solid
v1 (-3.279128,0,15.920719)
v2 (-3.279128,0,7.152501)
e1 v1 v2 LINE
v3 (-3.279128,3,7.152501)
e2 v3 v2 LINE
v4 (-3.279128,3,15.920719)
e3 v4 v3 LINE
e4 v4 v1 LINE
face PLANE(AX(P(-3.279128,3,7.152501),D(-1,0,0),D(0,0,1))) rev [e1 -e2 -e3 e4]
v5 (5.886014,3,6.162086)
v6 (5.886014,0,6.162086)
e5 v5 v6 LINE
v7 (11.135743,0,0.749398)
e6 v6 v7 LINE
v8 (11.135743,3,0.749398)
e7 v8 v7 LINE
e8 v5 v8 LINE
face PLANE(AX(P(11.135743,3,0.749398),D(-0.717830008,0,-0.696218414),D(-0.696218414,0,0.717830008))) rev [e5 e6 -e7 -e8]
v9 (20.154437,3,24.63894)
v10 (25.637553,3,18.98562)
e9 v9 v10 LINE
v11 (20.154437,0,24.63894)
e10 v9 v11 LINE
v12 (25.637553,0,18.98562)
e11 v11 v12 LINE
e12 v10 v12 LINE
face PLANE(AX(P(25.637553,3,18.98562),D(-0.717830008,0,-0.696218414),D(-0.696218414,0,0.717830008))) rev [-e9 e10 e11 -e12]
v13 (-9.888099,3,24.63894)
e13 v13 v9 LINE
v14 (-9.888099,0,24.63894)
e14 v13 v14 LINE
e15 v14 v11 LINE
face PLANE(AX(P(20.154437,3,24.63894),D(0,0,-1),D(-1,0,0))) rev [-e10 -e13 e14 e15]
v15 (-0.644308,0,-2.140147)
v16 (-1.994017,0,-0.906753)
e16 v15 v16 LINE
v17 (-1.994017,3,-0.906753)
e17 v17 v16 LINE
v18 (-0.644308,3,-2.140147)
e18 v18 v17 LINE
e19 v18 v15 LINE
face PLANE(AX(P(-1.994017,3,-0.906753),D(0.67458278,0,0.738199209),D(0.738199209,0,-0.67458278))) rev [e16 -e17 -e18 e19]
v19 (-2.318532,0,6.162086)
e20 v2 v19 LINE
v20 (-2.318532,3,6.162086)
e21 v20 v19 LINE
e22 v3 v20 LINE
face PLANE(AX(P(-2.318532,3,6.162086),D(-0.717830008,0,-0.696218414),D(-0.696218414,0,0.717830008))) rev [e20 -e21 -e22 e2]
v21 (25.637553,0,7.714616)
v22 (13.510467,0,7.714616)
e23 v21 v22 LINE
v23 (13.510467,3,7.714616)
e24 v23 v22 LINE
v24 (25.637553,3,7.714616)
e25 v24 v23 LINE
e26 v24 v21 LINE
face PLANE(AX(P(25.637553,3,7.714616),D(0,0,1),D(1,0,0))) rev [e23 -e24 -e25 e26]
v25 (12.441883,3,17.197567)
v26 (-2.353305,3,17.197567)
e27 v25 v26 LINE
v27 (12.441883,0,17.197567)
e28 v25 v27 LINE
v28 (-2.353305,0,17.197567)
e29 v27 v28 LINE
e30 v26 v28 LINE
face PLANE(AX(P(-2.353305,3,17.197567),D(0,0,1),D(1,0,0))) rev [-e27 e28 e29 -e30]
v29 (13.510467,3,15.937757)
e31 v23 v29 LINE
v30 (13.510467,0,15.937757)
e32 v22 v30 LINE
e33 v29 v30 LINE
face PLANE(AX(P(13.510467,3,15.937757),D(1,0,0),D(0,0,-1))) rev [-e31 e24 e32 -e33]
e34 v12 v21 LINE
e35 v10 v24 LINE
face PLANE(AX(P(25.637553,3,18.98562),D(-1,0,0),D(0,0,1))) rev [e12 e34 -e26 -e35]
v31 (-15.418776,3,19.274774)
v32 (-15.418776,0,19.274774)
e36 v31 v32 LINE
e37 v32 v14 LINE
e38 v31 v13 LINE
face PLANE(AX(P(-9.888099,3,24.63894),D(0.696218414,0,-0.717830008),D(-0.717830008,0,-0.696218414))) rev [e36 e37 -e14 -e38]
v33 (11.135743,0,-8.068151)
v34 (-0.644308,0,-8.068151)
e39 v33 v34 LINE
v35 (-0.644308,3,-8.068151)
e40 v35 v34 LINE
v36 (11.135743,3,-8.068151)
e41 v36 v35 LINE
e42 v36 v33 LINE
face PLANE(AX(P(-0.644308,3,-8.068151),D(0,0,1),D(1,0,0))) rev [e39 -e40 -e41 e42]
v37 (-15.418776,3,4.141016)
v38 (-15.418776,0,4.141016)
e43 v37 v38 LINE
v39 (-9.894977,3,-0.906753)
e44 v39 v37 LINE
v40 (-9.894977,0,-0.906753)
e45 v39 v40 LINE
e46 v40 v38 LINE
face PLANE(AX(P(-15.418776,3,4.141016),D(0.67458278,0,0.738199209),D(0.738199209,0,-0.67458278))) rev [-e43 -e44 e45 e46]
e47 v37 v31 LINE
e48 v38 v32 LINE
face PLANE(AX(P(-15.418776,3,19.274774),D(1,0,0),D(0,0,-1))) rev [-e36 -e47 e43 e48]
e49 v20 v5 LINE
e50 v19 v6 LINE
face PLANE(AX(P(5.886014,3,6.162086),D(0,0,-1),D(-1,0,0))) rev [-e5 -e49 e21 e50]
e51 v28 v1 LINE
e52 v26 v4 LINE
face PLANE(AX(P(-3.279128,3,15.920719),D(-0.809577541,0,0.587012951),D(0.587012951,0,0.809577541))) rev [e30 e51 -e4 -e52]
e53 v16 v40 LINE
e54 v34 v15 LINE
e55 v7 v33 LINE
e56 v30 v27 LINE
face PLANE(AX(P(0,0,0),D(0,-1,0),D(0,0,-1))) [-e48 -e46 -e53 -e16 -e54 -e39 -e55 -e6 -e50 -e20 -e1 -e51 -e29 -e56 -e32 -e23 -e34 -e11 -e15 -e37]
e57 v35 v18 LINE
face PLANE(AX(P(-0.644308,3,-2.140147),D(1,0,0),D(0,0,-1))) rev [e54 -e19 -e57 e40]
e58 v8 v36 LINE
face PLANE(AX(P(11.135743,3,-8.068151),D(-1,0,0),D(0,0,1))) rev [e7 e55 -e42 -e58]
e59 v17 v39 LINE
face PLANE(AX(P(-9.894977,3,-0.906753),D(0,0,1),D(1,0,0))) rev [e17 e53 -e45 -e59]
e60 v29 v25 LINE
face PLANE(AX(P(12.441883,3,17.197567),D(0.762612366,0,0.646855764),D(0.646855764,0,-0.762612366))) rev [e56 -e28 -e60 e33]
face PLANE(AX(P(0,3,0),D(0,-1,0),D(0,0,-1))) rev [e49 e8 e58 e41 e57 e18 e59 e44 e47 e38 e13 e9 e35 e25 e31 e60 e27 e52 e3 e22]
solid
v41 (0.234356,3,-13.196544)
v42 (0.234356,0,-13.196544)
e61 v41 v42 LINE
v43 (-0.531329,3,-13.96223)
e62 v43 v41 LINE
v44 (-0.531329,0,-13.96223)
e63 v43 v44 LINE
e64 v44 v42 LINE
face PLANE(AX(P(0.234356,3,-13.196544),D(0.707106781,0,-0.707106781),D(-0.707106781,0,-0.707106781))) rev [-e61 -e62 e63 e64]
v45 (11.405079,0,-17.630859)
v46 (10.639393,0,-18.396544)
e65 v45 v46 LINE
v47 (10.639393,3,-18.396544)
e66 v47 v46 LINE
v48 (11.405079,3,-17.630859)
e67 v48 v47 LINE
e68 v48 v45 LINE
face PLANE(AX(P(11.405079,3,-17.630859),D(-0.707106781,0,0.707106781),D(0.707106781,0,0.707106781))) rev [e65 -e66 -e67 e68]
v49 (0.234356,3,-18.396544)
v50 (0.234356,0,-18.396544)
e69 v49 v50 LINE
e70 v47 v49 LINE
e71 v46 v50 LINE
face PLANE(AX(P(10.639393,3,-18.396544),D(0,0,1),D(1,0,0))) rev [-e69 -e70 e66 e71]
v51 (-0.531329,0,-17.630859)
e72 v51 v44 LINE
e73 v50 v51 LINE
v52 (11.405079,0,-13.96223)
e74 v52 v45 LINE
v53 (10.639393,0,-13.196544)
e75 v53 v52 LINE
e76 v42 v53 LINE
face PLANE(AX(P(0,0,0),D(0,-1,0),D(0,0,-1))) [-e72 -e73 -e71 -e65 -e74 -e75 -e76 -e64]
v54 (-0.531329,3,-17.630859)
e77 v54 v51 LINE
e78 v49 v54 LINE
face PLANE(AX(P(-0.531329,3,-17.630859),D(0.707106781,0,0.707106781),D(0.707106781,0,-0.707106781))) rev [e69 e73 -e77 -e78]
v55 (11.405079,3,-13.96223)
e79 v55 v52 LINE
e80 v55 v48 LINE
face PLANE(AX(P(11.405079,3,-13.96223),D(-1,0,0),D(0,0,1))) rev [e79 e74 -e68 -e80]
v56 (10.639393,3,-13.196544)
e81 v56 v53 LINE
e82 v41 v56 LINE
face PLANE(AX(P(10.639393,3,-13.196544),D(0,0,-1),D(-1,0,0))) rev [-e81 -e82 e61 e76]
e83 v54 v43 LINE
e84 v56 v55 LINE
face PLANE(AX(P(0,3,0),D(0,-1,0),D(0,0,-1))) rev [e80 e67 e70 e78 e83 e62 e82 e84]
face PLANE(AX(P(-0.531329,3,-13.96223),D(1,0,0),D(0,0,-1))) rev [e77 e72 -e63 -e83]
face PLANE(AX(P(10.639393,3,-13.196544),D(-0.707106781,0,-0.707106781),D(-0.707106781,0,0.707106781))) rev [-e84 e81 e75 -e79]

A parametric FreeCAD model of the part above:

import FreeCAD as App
import Part
import Sketcher

doc = App.newDocument("Part")
body = doc.addObject("PartDesign::Body", "Body")

# Sketch on XZ plane
sketch1 = body.newObject("Sketcher::SketchObject", "Sketch")
sketch1.AttachmentSupport = (doc.getObject("XZ_Plane"), [""])
sketch1.MapMode = "FlatFace"
sketch1.addGeometry(Part.LineSegment(App.Vector(25.637553, 18.98562, 0), App.Vector(25.637553, 7.714616, 0)), False)
sketch1.addGeometry(Part.LineSegment(App.Vector(25.637553, 7.714616, 0), App.Vector(13.510467, 7.714616, 0)), False)
sketch1.addGeometry(Part.LineSegment(App.Vector(13.510467, 7.714616, 0), App.Vector(13.510467, 15.937757, 0)), False)
sketch1.addGeometry(Part.LineSegment(App.Vector(13.510467, 15.937757, 0), App.Vector(12.441883, 17.197567, 0)), False)
sketch1.addGeometry(Part.LineSegment(App.Vector(12.441883, 17.197567, 0), App.Vector(-2.353305, 17.197567, 0)), False)
sketch1.addGeometry(Part.LineSegment(App.Vector(-2.353305, 17.197567, 0), App.Vector(-3.279128, 15.920719, 0)), False)
sketch1.addGeometry(Part.LineSegment(App.Vector(-3.279128, 15.920719, 0), App.Vector(-3.279128, 7.152501, 0)), False)
sketch1.addGeometry(Part.LineSegment(App.Vector(-3.279128, 7.152501, 0), App.Vector(-2.318532, 6.162086, 0)), False)
sketch1.addGeometry(Part.LineSegment(App.Vector(-2.318532, 6.162086, 0), App.Vector(5.886014, 6.162086, 0)), False)
sketch1.addGeometry(Part.LineSegment(App.Vector(5.886014, 6.162086, 0), App.Vector(11.135743, 0.749398, 0)), False)
sketch1.addGeometry(Part.LineSegment(App.Vector(11.135743, 0.749398, 0), App.Vector(11.135743, -8.068151, 0)), False)
sketch1.addGeometry(Part.LineSegment(App.Vector(11.135743, -8.068151, 0), App.Vector(-0.644308, -8.068151, 0)), False)
sketch1.addGeometry(Part.LineSegment(App.Vector(-0.644308, -8.068151, 0), App.Vector(-0.644308, -2.140147, 0)), False)
sketch1.addGeometry(Part.LineSegment(App.Vector(-0.644308, -2.140147, 0), App.Vector(-1.994017, -0.906753, 0)), False)
sketch1.addGeometry(Part.LineSegment(App.Vector(-1.994017, -0.906753, 0), App.Vector(-9.894977, -0.906753, 0)), False)
sketch1.addGeometry(Part.LineSegment(App.Vector(-9.894977, -0.906753, 0), App.Vector(-15.418776, 4.141016, 0)), False)
sketch1.addGeometry(Part.LineSegment(App.Vector(-15.418776, 4.141016, 0), App.Vector(-15.418776, 19.274774, 0)), False)
sketch1.addGeometry(Part.LineSegment(App.Vector(-15.418776, 19.274774, 0), App.Vector(-9.888099, 24.63894, 0)), False)
sketch1.addGeometry(Part.LineSegment(App.Vector(-9.888099, 24.63894, 0), App.Vector(20.154437, 24.63894, 0)), False)
sketch1.addGeometry(Part.LineSegment(App.Vector(20.154437, 24.63894, 0), App.Vector(25.637553, 18.98562, 0)), False)
sketch1.addConstraint(Sketcher.Constraint("Coincident", 0, 2, 1, 1))
sketch1.addConstraint(Sketcher.Constraint("Coincident", 1, 2, 2, 1))
sketch1.addConstraint(Sketcher.Constraint("Coincident", 2, 2, 3, 1))
sketch1.addConstraint(Sketcher.Constraint("Coincident", 3, 2, 4, 1))
sketch1.addConstraint(Sketcher.Constraint("Coincident", 4, 2, 5, 1))
sketch1.addConstraint(Sketcher.Constraint("Coincident", 5, 2, 6, 1))
sketch1.addConstraint(Sketcher.Constraint("Coincident", 6, 2, 7, 1))
sketch1.addConstraint(Sketcher.Constraint("Coincident", 7, 2, 8, 1))
sketch1.addConstraint(Sketcher.Constraint("Coincident", 8, 2, 9, 1))
sketch1.addConstraint(Sketcher.Constraint("Coincident", 9, 2, 10, 1))
sketch1.addConstraint(Sketcher.Constraint("Coincident", 10, 2, 11, 1))
sketch1.addConstraint(Sketcher.Constraint("Coincident", 11, 2, 12, 1))
sketch1.addConstraint(Sketcher.Constraint("Coincident", 12, 2, 13, 1))
sketch1.addConstraint(Sketcher.Constraint("Coincident", 13, 2, 14, 1))
sketch1.addConstraint(Sketcher.Constraint("Coincident", 14, 2, 15, 1))
sketch1.addConstraint(Sketcher.Constraint("Coincident", 15, 2, 16, 1))
sketch1.addConstraint(Sketcher.Constraint("Coincident", 16, 2, 17, 1))
sketch1.addConstraint(Sketcher.Constraint("Coincident", 17, 2, 18, 1))
sketch1.addConstraint(Sketcher.Constraint("Coincident", 18, 2, 19, 1))
sketch1.addConstraint(Sketcher.Constraint("Coincident", 19, 2, 0, 1))
sketch1.addConstraint(Sketcher.Constraint("Vertical", 0))
sketch1.addConstraint(Sketcher.Constraint("Horizontal", 1))
sketch1.addConstraint(Sketcher.Constraint("Vertical", 2))
sketch1.addConstraint(Sketcher.Constraint("Horizontal", 4))
sketch1.addConstraint(Sketcher.Constraint("Vertical", 6))
sketch1.addConstraint(Sketcher.Constraint("Horizontal", 8))
sketch1.addConstraint(Sketcher.Constraint("Vertical", 10))
sketch1.addConstraint(Sketcher.Constraint("Horizontal", 11))
sketch1.addConstraint(Sketcher.Constraint("Vertical", 12))
sketch1.addConstraint(Sketcher.Constraint("Horizontal", 14))
sketch1.addConstraint(Sketcher.Constraint("Vertical", 16))
sketch1.addConstraint(Sketcher.Constraint("Horizontal", 18))
sketch1.addConstraint(Sketcher.Constraint("Parallel", 7, 9))
sketch1.addConstraint(Sketcher.Constraint("Parallel", 13, 15))
sketch1.addConstraint(Sketcher.Constraint("Perpendicular", 9, 17))
sketch1.addConstraint(Sketcher.Constraint("Perpendicular", 17, 19))
sketch1.addConstraint(Sketcher.Constraint("DistanceX", 7, 2, 1, 2, 15.828998))
sketch1.addConstraint(Sketcher.Constraint("Distance", 15, 7.482801))
sketch1.addConstraint(Sketcher.Constraint("DistanceX", 11, 2, 11, 1, 11.780051))
sketch1.addConstraint(Sketcher.Constraint("DistanceX", 14, 2, 14, 1, 7.900961))
sketch1.addConstraint(Sketcher.Constraint("DistanceY", 2, 1, 2, 2, 8.223141))
sketch1.addConstraint(Sketcher.Constraint("DistanceY", 6, 2, 6, 1, 8.768218))
sketch1.addConstraint(Sketcher.Constraint("DistanceY", 10, 2, 10, 1, 8.817549))
sketch1.addConstraint(Sketcher.Constraint("DistanceY", -1, 1, 6, 2, 7.152501))
sketch1.addConstraint(Sketcher.Constraint("DistanceX", 17, 2, -1, 1, 9.888099))
sketch1.addConstraint(Sketcher.Constraint("DistanceX", 15, 2, 14, 2, 5.523798))
sketch1.addConstraint(Sketcher.Constraint("Distance", 13, 1.828381))
sketch1.addConstraint(Sketcher.Constraint("Distance", 19, 7.875568))
sketch1.addConstraint(Sketcher.Constraint("DistanceX", 1, 2, 1, 1, 12.127086))
sketch1.addConstraint(Sketcher.Constraint("DistanceX", 4, 2, 4, 1, 14.795188))
sketch1.addConstraint(Sketcher.Constraint("DistanceX", 8, 1, 8, 2, 8.204546))
sketch1.addConstraint(Sketcher.Constraint("DistanceX", 18, 1, 18, 2, 30.042536))
sketch1.addConstraint(Sketcher.Constraint("DistanceY", 0, 2, 0, 1, 11.271004))
sketch1.addConstraint(Sketcher.Constraint("DistanceY", 12, 1, 12, 2, 5.928004))
sketch1.addConstraint(Sketcher.Constraint("DistanceY", 16, 1, 16, 2, 15.133758))
sketch1.addConstraint(Sketcher.Constraint("DistanceX", 5, 2, -1, 1, 3.279128))
sketch1.addConstraint(Sketcher.Constraint("DistanceX", 7, 2, -1, 1, 2.318532))
sketch1.addConstraint(Sketcher.Constraint("DistanceY", 10, 2, -1, 1, 8.068151))
sketch1.addConstraint(Sketcher.Constraint("DistanceY", 2, 2, 3, 2, 1.25981))
sketch1.addConstraint(Sketcher.Constraint("DistanceX", 3, 2, 0, 2, 13.19567))
pad1 = body.newObject("PartDesign::Pad", "Pad")
pad1.Profile = sketch1
pad1.Length = 3
pad1.Reversed = True
body2 = doc.addObject("PartDesign::Body", "Body001")

# Sketch on XZ plane
sketch2 = body2.newObject("Sketcher::SketchObject", "Sketch001")
sketch2.AttachmentSupport = (doc.getObject("XZ_Plane001"), [""])
sketch2.MapMode = "FlatFace"
sketch2.addGeometry(Part.LineSegment(App.Vector(10.639393, -13.196544, 0), App.Vector(11.405079, -13.96223, 0)), False)
sketch2.addGeometry(Part.LineSegment(App.Vector(11.405079, -13.96223, 0), App.Vector(11.405079, -17.630859, 0)), False)
sketch2.addGeometry(Part.LineSegment(App.Vector(11.405079, -17.630859, 0), App.Vector(10.639393, -18.396544, 0)), False)
sketch2.addGeometry(Part.LineSegment(App.Vector(10.639393, -18.396544, 0), App.Vector(0.234356, -18.396544, 0)), False)
sketch2.addGeometry(Part.LineSegment(App.Vector(0.234356, -18.396544, 0), App.Vector(-0.531329, -17.630859, 0)), False)
sketch2.addGeometry(Part.LineSegment(App.Vector(-0.531329, -17.630859, 0), App.Vector(-0.531329, -13.96223, 0)), False)
sketch2.addGeometry(Part.LineSegment(App.Vector(-0.531329, -13.96223, 0), App.Vector(0.234356, -13.196544, 0)), False)
sketch2.addGeometry(Part.LineSegment(App.Vector(0.234356, -13.196544, 0), App.Vector(10.639393, -13.196544, 0)), False)
sketch2.addConstraint(Sketcher.Constraint("Coincident", 0, 2, 1, 1))
sketch2.addConstraint(Sketcher.Constraint("Coincident", 1, 2, 2, 1))
sketch2.addConstraint(Sketcher.Constraint("Coincident", 2, 2, 3, 1))
sketch2.addConstraint(Sketcher.Constraint("Coincident", 3, 2, 4, 1))
sketch2.addConstraint(Sketcher.Constraint("Coincident", 4, 2, 5, 1))
sketch2.addConstraint(Sketcher.Constraint("Coincident", 5, 2, 6, 1))
sketch2.addConstraint(Sketcher.Constraint("Coincident", 6, 2, 7, 1))
sketch2.addConstraint(Sketcher.Constraint("Coincident", 7, 2, 0, 1))
sketch2.addConstraint(Sketcher.Constraint("Vertical", 1))
sketch2.addConstraint(Sketcher.Constraint("Horizontal", 3))
sketch2.addConstraint(Sketcher.Constraint("Vertical", 5))
sketch2.addConstraint(Sketcher.Constraint("Horizontal", 7))
sketch2.addConstraint(Sketcher.Constraint("Perpendicular", 0, 2))
sketch2.addConstraint(Sketcher.Constraint("Perpendicular", 2, 4))
sketch2.addConstraint(Sketcher.Constraint("Perpendicular", 4, 6))
sketch2.addConstraint(Sketcher.Constraint("Horizontal", 1, 2, 4, 2))
sketch2.addConstraint(Sketcher.Constraint("Horizontal", 0, 2, 5, 2))
sketch2.addConstraint(Sketcher.Constraint("Vertical", 3, 2, 6, 2))
sketch2.addConstraint(Sketcher.Constraint("Vertical", 2, 2, 7, 2))
sketch2.addConstraint(Sketcher.Constraint("DistanceY", 3, 2, 6, 2, 5.2))
sketch2.addConstraint(Sketcher.Constraint("DistanceY", 1, 2, 1, 1, 3.668629))
sketch2.addConstraint(Sketcher.Constraint("DistanceX", 3, 2, 3, 1, 10.405037))
sketch2.addConstraint(Sketcher.Constraint("DistanceX", -1, 1, 0, 2, 11.405079))
sketch2.addConstraint(Sketcher.Constraint("DistanceY", 0, 2, -1, 1, 13.96223))
pad2 = body2.newObject("PartDesign::Pad", "Pad001")
pad2.Profile = sketch2
pad2.Length = 3
pad2.Reversed = True

doc.recompute()
